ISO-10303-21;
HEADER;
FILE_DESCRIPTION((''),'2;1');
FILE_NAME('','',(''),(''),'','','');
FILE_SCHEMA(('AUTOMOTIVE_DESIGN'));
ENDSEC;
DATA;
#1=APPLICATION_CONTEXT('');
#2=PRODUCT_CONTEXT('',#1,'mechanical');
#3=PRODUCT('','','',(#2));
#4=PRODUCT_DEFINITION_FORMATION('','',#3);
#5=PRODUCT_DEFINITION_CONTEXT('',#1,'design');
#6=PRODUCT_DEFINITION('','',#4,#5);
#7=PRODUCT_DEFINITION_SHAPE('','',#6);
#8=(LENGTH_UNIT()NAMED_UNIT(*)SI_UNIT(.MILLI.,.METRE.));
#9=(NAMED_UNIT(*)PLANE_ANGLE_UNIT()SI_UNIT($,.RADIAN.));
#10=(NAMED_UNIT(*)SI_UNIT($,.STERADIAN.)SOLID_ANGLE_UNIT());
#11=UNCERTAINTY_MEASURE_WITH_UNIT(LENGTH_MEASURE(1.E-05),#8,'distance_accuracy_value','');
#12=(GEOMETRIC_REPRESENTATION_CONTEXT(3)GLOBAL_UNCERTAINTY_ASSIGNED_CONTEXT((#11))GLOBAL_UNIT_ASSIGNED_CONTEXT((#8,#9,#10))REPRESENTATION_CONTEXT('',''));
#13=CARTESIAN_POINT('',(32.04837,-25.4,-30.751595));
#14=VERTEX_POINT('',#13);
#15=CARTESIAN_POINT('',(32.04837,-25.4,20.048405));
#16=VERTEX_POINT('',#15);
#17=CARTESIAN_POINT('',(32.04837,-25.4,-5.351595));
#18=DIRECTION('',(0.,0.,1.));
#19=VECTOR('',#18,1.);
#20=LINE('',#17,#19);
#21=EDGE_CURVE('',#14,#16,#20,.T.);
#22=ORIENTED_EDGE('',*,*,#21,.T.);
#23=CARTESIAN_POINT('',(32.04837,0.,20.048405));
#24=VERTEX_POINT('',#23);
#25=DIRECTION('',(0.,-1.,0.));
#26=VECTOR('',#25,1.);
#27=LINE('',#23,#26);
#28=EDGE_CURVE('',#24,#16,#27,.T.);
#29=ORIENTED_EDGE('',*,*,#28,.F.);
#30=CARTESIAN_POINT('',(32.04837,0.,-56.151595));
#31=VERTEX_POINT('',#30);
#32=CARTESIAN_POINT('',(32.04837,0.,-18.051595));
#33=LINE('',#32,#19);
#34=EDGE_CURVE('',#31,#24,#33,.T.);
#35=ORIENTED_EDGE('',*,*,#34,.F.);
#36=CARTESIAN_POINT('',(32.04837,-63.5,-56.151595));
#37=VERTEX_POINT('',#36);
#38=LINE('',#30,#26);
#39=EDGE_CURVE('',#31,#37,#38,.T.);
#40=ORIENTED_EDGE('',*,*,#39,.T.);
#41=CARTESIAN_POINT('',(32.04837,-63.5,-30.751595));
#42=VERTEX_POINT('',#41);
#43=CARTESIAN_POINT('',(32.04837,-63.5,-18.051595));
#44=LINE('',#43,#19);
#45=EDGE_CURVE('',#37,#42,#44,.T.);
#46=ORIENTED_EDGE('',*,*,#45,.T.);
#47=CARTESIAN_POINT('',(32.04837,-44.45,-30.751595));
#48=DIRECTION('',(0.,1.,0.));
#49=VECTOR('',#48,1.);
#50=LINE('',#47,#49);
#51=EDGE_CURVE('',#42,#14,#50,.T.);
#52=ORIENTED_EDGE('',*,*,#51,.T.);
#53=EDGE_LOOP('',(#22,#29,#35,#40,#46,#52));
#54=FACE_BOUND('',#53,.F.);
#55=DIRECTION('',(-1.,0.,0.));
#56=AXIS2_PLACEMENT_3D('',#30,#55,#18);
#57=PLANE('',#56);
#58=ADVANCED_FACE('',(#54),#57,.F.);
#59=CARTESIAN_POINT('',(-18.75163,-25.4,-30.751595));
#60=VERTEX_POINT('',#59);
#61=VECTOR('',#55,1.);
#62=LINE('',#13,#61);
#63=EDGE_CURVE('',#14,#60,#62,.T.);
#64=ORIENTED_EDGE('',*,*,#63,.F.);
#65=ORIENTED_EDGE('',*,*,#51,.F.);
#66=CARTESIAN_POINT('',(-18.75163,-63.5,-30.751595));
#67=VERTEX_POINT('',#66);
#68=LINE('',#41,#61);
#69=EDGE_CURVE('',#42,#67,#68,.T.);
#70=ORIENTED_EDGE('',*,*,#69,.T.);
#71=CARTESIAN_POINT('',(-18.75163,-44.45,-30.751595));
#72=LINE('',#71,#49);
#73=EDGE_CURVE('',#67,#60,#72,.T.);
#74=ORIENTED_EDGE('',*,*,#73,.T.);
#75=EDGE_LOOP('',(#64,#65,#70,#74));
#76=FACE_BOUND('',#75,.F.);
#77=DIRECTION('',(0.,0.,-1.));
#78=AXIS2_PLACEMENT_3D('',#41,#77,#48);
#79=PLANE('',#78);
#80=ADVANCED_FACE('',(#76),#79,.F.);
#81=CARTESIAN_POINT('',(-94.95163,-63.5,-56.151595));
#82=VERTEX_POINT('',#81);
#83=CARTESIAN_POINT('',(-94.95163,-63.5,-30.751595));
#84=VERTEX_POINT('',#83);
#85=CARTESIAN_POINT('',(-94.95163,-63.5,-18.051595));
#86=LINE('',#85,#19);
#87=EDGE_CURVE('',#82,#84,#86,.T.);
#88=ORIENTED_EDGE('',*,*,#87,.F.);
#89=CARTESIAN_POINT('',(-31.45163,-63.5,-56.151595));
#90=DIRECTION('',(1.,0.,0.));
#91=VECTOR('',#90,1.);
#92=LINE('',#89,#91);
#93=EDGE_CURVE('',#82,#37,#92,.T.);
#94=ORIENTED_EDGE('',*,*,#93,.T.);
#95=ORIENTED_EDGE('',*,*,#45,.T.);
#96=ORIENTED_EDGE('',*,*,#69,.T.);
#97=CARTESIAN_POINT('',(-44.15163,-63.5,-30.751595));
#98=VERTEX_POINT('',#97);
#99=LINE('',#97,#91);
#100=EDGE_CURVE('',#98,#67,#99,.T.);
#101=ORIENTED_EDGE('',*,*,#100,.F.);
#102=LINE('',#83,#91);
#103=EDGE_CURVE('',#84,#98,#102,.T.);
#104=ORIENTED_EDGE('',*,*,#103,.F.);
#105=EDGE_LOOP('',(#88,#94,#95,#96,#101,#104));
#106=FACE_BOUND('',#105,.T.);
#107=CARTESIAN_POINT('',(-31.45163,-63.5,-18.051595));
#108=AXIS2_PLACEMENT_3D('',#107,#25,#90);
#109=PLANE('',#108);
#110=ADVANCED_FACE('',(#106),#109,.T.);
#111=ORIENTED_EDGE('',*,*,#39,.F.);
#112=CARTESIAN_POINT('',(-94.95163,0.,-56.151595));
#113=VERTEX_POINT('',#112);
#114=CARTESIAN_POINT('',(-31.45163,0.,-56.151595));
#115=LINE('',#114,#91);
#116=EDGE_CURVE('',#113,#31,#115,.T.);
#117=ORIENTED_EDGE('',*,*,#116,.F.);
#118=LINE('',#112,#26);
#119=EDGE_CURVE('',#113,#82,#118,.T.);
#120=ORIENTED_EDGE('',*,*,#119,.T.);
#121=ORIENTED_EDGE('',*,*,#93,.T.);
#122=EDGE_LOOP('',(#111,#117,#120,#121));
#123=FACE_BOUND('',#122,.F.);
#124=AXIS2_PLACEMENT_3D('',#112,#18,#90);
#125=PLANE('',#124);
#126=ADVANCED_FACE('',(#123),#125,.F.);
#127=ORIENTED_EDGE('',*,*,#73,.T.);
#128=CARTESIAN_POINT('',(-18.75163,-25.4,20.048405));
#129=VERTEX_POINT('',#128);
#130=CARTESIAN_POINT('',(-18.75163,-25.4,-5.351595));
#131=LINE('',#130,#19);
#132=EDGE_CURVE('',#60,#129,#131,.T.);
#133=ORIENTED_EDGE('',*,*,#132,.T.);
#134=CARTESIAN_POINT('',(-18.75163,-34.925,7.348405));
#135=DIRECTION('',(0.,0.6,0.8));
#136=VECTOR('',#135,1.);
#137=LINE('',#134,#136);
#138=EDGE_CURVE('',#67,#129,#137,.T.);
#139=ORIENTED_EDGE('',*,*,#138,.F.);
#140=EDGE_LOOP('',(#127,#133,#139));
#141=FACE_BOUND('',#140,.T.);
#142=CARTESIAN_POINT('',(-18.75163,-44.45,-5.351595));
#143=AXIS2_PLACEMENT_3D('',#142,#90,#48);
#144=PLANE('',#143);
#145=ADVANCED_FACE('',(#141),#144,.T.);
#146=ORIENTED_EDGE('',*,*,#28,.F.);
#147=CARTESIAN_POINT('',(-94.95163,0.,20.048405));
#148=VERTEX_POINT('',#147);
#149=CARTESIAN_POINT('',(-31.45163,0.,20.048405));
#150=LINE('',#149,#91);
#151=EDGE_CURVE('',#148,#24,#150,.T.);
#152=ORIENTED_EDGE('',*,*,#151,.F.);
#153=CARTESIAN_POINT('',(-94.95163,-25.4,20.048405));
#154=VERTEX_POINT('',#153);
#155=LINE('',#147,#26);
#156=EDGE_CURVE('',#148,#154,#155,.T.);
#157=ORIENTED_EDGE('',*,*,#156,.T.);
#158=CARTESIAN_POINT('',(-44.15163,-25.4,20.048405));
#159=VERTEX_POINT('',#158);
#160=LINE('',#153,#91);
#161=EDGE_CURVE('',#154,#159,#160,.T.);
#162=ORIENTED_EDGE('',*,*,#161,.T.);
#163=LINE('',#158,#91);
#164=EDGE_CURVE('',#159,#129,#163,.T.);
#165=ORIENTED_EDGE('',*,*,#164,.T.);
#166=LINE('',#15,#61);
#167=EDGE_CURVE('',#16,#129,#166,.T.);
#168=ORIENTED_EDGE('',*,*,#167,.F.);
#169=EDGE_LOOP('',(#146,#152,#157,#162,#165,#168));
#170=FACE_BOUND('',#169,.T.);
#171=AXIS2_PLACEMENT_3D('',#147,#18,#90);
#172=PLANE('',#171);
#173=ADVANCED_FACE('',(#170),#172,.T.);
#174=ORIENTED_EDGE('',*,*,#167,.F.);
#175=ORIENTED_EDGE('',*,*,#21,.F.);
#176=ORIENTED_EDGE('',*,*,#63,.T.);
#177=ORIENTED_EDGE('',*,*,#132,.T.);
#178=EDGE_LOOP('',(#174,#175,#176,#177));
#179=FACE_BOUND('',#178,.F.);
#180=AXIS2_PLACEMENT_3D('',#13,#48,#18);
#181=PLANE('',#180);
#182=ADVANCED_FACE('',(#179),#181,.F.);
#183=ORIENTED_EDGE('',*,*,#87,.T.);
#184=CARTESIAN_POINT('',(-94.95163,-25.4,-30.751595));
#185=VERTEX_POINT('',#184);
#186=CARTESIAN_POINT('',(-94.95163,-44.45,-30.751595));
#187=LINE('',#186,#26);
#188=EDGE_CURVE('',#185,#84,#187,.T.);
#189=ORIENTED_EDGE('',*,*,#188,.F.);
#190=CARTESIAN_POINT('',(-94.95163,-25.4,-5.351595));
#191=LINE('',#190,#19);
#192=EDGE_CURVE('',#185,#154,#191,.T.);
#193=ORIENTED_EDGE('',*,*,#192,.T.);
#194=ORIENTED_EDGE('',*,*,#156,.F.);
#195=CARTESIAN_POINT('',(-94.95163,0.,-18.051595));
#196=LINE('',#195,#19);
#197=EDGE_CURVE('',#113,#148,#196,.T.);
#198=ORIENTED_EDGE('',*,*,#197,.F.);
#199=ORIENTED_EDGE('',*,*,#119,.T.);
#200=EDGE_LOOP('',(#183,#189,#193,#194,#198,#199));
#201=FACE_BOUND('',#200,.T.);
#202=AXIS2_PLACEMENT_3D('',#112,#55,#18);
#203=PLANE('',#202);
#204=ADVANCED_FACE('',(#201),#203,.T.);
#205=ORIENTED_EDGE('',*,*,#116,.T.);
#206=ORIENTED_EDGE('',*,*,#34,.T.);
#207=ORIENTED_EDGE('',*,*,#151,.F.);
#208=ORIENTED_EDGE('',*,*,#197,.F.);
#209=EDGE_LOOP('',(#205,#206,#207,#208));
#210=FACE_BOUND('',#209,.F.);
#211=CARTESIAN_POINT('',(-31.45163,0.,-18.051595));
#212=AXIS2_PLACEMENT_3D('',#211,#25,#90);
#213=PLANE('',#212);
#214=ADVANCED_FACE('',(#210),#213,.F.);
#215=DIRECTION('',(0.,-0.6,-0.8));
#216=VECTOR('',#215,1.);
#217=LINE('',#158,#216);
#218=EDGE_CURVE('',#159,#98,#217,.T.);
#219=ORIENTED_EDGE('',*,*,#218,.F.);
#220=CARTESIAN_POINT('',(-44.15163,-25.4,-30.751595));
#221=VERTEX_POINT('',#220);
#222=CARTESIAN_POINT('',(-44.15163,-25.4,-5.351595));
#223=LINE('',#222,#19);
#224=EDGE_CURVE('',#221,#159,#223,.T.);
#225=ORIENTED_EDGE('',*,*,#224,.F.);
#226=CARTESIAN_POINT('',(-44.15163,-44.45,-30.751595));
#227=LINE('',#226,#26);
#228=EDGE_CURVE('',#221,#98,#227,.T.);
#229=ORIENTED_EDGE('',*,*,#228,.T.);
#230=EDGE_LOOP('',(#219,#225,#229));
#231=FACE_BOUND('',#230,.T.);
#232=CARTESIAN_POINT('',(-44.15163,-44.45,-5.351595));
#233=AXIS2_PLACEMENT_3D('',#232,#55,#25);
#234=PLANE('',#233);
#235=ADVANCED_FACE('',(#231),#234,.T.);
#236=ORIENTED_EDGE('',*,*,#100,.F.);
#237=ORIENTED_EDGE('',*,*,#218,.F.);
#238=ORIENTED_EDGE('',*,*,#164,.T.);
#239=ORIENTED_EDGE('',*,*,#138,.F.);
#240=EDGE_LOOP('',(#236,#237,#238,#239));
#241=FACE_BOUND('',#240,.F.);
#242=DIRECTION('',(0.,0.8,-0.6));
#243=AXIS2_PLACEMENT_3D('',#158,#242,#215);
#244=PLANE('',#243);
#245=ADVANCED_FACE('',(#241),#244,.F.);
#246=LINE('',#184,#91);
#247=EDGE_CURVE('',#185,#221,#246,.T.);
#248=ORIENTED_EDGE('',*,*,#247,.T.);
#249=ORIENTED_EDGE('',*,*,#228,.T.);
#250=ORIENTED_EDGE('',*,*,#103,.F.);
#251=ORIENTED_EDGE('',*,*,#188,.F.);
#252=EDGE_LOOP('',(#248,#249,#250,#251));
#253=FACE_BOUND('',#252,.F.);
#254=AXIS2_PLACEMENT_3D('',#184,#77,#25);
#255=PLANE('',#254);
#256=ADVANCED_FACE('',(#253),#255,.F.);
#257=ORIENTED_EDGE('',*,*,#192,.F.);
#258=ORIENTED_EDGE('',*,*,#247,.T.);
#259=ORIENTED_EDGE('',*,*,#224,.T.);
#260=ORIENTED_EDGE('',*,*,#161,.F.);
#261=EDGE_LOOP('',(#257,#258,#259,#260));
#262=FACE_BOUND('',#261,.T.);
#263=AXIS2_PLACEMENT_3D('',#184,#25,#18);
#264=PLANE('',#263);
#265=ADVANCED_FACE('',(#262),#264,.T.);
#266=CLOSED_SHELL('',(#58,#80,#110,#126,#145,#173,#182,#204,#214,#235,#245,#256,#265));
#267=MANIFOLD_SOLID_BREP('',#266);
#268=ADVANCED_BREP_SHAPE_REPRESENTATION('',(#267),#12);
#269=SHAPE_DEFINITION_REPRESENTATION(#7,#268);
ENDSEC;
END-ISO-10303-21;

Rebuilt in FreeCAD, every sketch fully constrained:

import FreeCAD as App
import Part
import Sketcher

V = App.Vector
Q = App.Units.Quantity

doc = App.newDocument("Part")
body = doc.addObject("PartDesign::Body", "Body")

sketch1 = body.newObject("Sketcher::SketchObject", "Sketch")
sketch1.AttachmentSupport = (doc.getObject("XZ_Plane"), [""])
sketch1.MapMode = "FlatFace"
sketch1.addGeometry([
    Part.LineSegment(V(-94.95163, 20.048405, 0), V(-94.95163, -56.151595, 0)),
    Part.LineSegment(V(-94.95163, -56.151595, 0), V(32.04837, -56.151595, 0)),
    Part.LineSegment(V(32.04837, -56.151595, 0), V(32.04837, 20.048405, 0)),
    Part.LineSegment(V(32.04837, 20.048405, 0), V(-94.95163, 20.048405, 0)),
], False)
sketch1.addConstraint([
    Sketcher.Constraint("Coincident", 0, 2, 1, 1),
    Sketcher.Constraint("Coincident", 1, 2, 2, 1),
    Sketcher.Constraint("Coincident", 2, 2, 3, 1),
    Sketcher.Constraint("Coincident", 3, 2, 0, 1),
    Sketcher.Constraint("Vertical", 0),
    Sketcher.Constraint("Horizontal", 1),
    Sketcher.Constraint("Vertical", 2),
    Sketcher.Constraint("Horizontal", 3),
    Sketcher.Constraint("DistanceX", 1, 1, 1, 2, Q("5 in")),
    Sketcher.Constraint("DistanceY", 0, 2, 0, 1, Q("3 in")),
    Sketcher.Constraint("DistanceX", 0, 2, -1, 1, Q("94.95163 mm")),
    Sketcher.Constraint("DistanceY", 0, 2, -1, 1, Q("56.151595 mm")),
])
pad1 = body.newObject("PartDesign::Pad", "Pad")
pad1.Profile = sketch1
pad1.Length = Q("2.5 in")

sketch2 = body.newObject("Sketcher::SketchObject", "Sketch001")
sketch2.AttachmentSupport = (doc.getObject("YZ_Plane"), [""])
sketch2.MapMode = "FlatFace"
sketch2.AttachmentOffset = App.Placement(V(0, 0, 32.04837), App.Rotation())
sketch2.addGeometry([
    Part.LineSegment(V(-63.5, 20.048405, 0), V(-63.5, -30.751595, 0)),
    Part.LineSegment(V(-63.5, -30.751595, 0), V(-25.4, -30.751595, 0)),
    Part.LineSegment(V(-25.4, -30.751595, 0), V(-25.4, 20.048405, 0)),
    Part.LineSegment(V(-25.4, 20.048405, 0), V(-63.5, 20.048405, 0)),
], False)
sketch2.addConstraint([
    Sketcher.Constraint("Coincident", 0, 2, 1, 1),
    Sketcher.Constraint("Coincident", 1, 2, 2, 1),
    Sketcher.Constraint("Coincident", 2, 2, 3, 1),
    Sketcher.Constraint("Coincident", 3, 2, 0, 1),
    Sketcher.Constraint("Vertical", 0),
    Sketcher.Constraint("Horizontal", 1),
    Sketcher.Constraint("Vertical", 2),
    Sketcher.Constraint("Horizontal", 3),
    Sketcher.Constraint("DistanceY", 0, 2, 0, 1, Q("2 in")),
    Sketcher.Constraint("DistanceX", 1, 1, 1, 2, Q("1.5 in")),
    Sketcher.Constraint("DistanceX", 1, 2, -1, 1, Q("1 in")),
    Sketcher.Constraint("DistanceY", 0, 2, -1, 1, Q("30.751595 mm")),
])
pocket1 = body.newObject("PartDesign::Pocket", "Pocket")
pocket1.Profile = sketch2
pocket1.Length = Q("2 in")

sketch3 = body.newObject("Sketcher::SketchObject", "Sketch002")
sketch3.AttachmentSupport = (doc.getObject("YZ_Plane"), [""])
sketch3.MapMode = "FlatFace"
sketch3.AttachmentOffset = App.Placement(V(0, 0, -94.95163), App.Rotation())
sketch3.addGeometry([
    Part.LineSegment(V(-25.4, 20.048405, 0), V(-25.4, -30.751595, 0)),
    Part.LineSegment(V(-25.4, -30.751595, 0), V(-63.5, -30.751595, 0)),
    Part.LineSegment(V(-63.5, -30.751595, 0), V(-63.5, 20.048405, 0)),
    Part.LineSegment(V(-63.5, 20.048405, 0), V(-25.4, 20.048405, 0)),
], False)
sketch3.addConstraint([
    Sketcher.Constraint("Coincident", 0, 2, 1, 1),
    Sketcher.Constraint("Coincident", 1, 2, 2, 1),
    Sketcher.Constraint("Coincident", 2, 2, 3, 1),
    Sketcher.Constraint("Coincident", 3, 2, 0, 1),
    Sketcher.Constraint("Vertical", 0),
    Sketcher.Constraint("Horizontal", 1),
    Sketcher.Constraint("Vertical", 2),
    Sketcher.Constraint("Horizontal", 3),
    Sketcher.Constraint("DistanceY", 0, 2, 0, 1, Q("2 in")),
    Sketcher.Constraint("DistanceX", 1, 2, 1, 1, Q("1.5 in")),
    Sketcher.Constraint("DistanceX", 0, 2, -1, 1, Q("1 in")),
    Sketcher.Constraint("DistanceY", 0, 2, -1, 1, Q("30.751595 mm")),
])
pocket2 = body.newObject("PartDesign::Pocket", "Pocket001")
pocket2.Profile = sketch3
pocket2.Length = Q("2 in")
pocket2.Reversed = True

sketch4 = body.newObject("Sketcher::SketchObject", "Sketch003")
sketch4.AttachmentSupport = (doc.getObject("YZ_Plane"), [""])
sketch4.MapMode = "FlatFace"
sketch4.AttachmentOffset = App.Placement(V(0, 0, -44.15163), App.Rotation())
sketch4.addGeometry([
    Part.LineSegment(V(-63.5, 20.048405, 0), V(-25.4, 20.048405, 0)),
    Part.LineSegment(V(-25.4, 20.048405, 0), V(-63.5, -30.751595, 0)),
    Part.LineSegment(V(-63.5, -30.751595, 0), V(-63.5, 20.048405, 0)),
], False)
sketch4.addConstraint([
    Sketcher.Constraint("Coincident", 0, 2, 1, 1),
    Sketcher.Constraint("Coincident", 1, 2, 2, 1),
    Sketcher.Constraint("Coincident", 2, 2, 0, 1),
    Sketcher.Constraint("Horizontal", 0),
    Sketcher.Constraint("Vertical", 2),
    Sketcher.Constraint("DistanceY", 2, 1, 2, 2, Q("2 in")),
    Sketcher.Constraint("DistanceX", 0, 1, 0, 2, Q("1.5 in")),
    Sketcher.Constraint("DistanceX", 0, 2, -1, 1, Q("1 in")),
    Sketcher.Constraint("DistanceY", -1, 1, 0, 2, Q("20.048405 mm")),
])
pocket3 = body.newObject("PartDesign::Pocket", "Pocket002")
pocket3.Profile = sketch4
pocket3.Type = "ThroughAll"
pocket3.Reversed = True

doc.recompute()
